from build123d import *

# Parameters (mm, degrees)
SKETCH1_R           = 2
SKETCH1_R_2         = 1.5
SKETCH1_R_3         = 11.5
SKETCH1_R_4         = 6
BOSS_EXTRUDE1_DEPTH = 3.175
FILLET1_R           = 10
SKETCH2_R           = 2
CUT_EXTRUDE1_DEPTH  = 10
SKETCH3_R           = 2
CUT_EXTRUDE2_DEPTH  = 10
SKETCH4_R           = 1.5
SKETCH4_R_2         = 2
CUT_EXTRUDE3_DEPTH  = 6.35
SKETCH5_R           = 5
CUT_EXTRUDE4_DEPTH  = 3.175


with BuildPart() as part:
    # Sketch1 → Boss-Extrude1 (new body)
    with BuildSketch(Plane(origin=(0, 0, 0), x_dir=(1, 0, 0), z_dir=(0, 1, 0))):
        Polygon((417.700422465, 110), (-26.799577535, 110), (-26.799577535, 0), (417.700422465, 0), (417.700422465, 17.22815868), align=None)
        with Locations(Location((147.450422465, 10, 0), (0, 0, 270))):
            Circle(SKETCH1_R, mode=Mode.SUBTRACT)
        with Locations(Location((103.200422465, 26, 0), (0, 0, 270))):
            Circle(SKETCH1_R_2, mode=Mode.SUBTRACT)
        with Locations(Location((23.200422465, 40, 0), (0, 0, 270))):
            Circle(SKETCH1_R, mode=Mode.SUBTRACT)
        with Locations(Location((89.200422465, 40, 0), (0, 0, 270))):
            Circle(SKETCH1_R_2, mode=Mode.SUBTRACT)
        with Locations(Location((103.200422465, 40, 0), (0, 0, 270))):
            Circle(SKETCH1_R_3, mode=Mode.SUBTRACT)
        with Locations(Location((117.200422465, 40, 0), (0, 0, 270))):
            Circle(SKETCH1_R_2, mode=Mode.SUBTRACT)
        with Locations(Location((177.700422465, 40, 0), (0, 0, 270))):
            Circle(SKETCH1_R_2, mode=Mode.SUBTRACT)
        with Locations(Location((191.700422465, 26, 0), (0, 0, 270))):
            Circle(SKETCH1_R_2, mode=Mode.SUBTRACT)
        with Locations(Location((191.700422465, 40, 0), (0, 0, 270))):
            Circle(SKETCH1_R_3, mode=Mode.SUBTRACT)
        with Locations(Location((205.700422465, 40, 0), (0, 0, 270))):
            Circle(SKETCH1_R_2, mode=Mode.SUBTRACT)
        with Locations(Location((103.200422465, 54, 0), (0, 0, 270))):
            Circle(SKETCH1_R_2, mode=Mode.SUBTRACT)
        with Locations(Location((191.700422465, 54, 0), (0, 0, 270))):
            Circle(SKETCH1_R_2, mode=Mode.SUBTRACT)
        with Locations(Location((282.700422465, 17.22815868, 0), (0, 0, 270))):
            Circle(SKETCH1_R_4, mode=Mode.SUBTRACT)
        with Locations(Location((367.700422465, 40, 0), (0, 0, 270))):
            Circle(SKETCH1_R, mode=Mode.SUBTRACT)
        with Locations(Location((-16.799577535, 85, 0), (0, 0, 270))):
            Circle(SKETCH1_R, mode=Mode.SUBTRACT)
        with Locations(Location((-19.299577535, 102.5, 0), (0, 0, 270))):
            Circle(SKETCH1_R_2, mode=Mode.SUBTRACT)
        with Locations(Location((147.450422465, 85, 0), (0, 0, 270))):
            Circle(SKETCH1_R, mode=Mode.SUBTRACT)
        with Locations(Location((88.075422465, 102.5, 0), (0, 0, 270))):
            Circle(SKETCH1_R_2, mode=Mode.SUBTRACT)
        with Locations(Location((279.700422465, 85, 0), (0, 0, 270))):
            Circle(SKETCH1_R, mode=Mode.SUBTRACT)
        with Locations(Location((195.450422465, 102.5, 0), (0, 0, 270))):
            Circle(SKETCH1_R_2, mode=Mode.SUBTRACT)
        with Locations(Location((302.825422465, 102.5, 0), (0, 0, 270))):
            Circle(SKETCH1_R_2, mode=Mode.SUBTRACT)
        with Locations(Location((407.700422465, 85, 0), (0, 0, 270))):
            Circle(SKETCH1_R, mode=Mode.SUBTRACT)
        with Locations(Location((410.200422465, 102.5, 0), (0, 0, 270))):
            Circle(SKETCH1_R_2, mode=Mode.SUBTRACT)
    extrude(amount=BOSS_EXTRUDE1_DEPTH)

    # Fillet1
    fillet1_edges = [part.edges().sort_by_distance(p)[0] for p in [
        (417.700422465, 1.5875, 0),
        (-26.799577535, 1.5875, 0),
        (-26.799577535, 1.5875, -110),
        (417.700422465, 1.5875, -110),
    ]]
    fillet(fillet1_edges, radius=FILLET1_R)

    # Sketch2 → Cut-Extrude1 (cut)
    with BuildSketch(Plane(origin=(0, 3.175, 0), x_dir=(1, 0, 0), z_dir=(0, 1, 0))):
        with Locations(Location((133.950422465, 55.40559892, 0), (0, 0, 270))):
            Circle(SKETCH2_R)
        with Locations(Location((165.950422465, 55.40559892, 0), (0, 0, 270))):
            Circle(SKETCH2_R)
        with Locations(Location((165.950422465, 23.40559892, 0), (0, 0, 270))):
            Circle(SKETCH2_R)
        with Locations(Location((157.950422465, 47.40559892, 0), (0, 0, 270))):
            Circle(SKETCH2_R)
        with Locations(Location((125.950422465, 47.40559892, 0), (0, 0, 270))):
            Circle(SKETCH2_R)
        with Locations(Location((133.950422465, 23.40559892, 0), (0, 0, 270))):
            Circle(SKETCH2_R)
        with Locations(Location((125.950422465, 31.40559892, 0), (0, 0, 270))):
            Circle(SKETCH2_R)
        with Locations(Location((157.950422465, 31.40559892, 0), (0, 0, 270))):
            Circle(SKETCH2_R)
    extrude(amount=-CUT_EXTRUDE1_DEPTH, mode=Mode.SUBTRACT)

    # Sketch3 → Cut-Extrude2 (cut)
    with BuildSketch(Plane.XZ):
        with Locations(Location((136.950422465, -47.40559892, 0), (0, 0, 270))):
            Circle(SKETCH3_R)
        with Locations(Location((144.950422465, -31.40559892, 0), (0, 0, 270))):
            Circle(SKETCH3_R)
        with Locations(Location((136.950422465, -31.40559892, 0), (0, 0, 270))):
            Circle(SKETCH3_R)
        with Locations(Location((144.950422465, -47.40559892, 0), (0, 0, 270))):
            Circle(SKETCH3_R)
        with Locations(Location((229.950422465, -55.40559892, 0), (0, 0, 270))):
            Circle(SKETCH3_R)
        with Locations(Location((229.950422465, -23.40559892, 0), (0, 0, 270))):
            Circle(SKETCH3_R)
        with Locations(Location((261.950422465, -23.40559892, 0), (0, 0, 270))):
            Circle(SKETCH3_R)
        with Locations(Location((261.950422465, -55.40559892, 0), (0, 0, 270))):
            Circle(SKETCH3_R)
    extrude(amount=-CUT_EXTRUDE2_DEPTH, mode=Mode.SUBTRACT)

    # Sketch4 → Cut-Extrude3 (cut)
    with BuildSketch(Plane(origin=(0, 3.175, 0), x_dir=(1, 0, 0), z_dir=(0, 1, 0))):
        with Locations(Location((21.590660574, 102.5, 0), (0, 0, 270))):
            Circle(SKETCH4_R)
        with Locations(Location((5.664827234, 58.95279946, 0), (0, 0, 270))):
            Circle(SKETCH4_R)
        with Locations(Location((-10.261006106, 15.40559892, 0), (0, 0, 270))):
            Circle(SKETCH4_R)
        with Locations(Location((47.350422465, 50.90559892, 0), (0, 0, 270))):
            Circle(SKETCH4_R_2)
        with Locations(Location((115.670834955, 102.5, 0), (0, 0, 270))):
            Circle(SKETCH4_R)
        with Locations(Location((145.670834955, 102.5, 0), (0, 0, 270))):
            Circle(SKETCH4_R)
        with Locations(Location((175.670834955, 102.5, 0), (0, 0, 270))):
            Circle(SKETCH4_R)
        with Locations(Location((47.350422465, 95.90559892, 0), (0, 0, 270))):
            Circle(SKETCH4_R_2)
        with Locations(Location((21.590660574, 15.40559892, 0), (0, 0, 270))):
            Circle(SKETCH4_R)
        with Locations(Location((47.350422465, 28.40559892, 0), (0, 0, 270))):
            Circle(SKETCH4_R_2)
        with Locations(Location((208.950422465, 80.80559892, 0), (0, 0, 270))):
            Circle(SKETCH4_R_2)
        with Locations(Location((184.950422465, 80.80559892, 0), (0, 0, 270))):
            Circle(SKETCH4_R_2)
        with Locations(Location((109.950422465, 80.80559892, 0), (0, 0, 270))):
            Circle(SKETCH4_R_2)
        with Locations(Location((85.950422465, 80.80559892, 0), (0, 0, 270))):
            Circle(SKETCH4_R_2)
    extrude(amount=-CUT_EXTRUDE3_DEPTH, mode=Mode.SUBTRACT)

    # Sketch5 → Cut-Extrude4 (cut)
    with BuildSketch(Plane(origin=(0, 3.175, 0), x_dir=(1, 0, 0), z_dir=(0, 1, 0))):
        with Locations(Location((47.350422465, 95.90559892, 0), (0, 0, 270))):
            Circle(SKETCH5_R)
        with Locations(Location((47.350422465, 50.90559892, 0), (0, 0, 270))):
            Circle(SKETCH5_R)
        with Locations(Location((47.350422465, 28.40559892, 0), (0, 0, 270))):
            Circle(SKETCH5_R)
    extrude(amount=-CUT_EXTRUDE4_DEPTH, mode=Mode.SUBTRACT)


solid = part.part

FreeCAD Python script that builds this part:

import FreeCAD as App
import Part
import Sketcher
Q = App.Units.Quantity


def edges_at(feature, points):
    """Names of the edges that pass closest to the given points."""
    edges = feature.Shape.Edges
    near = lambda p: min(range(len(edges)), key=lambda i: edges[i].distToShape(Part.Vertex(*p))[0])
    return sorted({f"Edge{near(p) + 1}" for p in points})


def add_polygon(sketch, points):
    """Adds a closed chain of lines whose ends are joined by coincident constraints."""
    first, n = sketch.GeometryCount, len(points)
    for a, b in zip(points, points[1:] + points[:1]):
        sketch.addGeometry(Part.LineSegment(App.Vector(*a, 0), App.Vector(*b, 0)), False)
    for i in range(n):
        sketch.addConstraint(Sketcher.Constraint("Coincident", first + i, 2, first + (i + 1) % n, 1))

doc = App.newDocument("Part")
body = doc.addObject("PartDesign::Body", "Body")

# Sketch on XZ plane
sketch1 = body.newObject("Sketcher::SketchObject", "Sketch")
sketch1.AttachmentSupport = (doc.getObject("XZ_Plane"), [""])
sketch1.MapMode = "FlatFace"
add_polygon(sketch1, [(417.7, -110), (-26.8, -110), (-26.8, 0), (417.7, 0)])  # lines 0-3
sketch1.addGeometry(Part.Circle(App.Vector(147.5, -10, 0), App.Vector(0, 0, 1), 2), False)  # 4
sketch1.addGeometry(Part.Circle(App.Vector(103.2, -26, 0), App.Vector(0, 0, 1), 1.5), False)  # 5
sketch1.addGeometry(Part.Circle(App.Vector(191.7, -26, 0), App.Vector(0, 0, 1), 1.5), False)  # 6
sketch1.addGeometry(Part.Circle(App.Vector(23.2, -40, 0), App.Vector(0, 0, 1), 2), False)  # 7
sketch1.addGeometry(Part.Circle(App.Vector(89.2, -40, 0), App.Vector(0, 0, 1), 1.5), False)  # 8
sketch1.addGeometry(Part.Circle(App.Vector(103.2, -40, 0), App.Vector(0, 0, 1), 11.5), False)  # 9
sketch1.addGeometry(Part.Circle(App.Vector(117.2, -40, 0), App.Vector(0, 0, 1), 1.5), False)  # 10
sketch1.addGeometry(Part.Circle(App.Vector(177.7, -40, 0), App.Vector(0, 0, 1), 1.5), False)  # 11
sketch1.addGeometry(Part.Circle(App.Vector(191.7, -40, 0), App.Vector(0, 0, 1), 11.5), False)  # 12
sketch1.addGeometry(Part.Circle(App.Vector(103.2, -54, 0), App.Vector(0, 0, 1), 1.5), False)  # 13
sketch1.addGeometry(Part.Circle(App.Vector(191.7, -54, 0), App.Vector(0, 0, 1), 1.5), False)  # 14
sketch1.addGeometry(Part.Circle(App.Vector(282.7, -17.2, 0), App.Vector(0, 0, 1), 6), False)  # 15
sketch1.addGeometry(Part.Circle(App.Vector(205.7, -40, 0), App.Vector(0, 0, 1), 1.5), False)  # 16
sketch1.addGeometry(Part.Circle(App.Vector(367.7, -40, 0), App.Vector(0, 0, 1), 2), False)  # 17
sketch1.addGeometry(Part.Circle(App.Vector(-16.8, -85, 0), App.Vector(0, 0, 1), 2), False)  # 18
sketch1.addGeometry(Part.Circle(App.Vector(-19.3, -102.5, 0), App.Vector(0, 0, 1), 1.5), False)  # 19
sketch1.addGeometry(Part.Circle(App.Vector(147.5, -85, 0), App.Vector(0, 0, 1), 2), False)  # 20
sketch1.addGeometry(Part.Circle(App.Vector(88.1, -102.5, 0), App.Vector(0, 0, 1), 1.5), False)  # 21
sketch1.addGeometry(Part.Circle(App.Vector(279.7, -85, 0), App.Vector(0, 0, 1), 2), False)  # 22
sketch1.addGeometry(Part.Circle(App.Vector(195.5, -102.5, 0), App.Vector(0, 0, 1), 1.5), False)  # 23
sketch1.addGeometry(Part.Circle(App.Vector(302.8, -102.5, 0), App.Vector(0, 0, 1), 1.5), False)  # 24
sketch1.addGeometry(Part.Circle(App.Vector(407.7, -85, 0), App.Vector(0, 0, 1), 2), False)  # 25
sketch1.addGeometry(Part.Circle(App.Vector(410.2, -102.5, 0), App.Vector(0, 0, 1), 1.5), False)  # 26
sketch1.addConstraint([
    Sketcher.Constraint("Horizontal", 0),
    Sketcher.Constraint("Vertical", 1),
    Sketcher.Constraint("Horizontal", 2),
    Sketcher.Constraint("Vertical", 3),
    Sketcher.Constraint("Equal", 5, 6),
    Sketcher.Constraint("Equal", 4, 7),
    Sketcher.Constraint("Equal", 6, 8),
    Sketcher.Constraint("Equal", 8, 10),
    Sketcher.Constraint("Equal", 10, 11),
    Sketcher.Constraint("Equal", 9, 12),
    Sketcher.Constraint("Equal", 11, 13),
    Sketcher.Constraint("Equal", 13, 14),
    Sketcher.Constraint("Equal", 14, 16),
    Sketcher.Constraint("Equal", 7, 17),
    Sketcher.Constraint("Equal", 17, 18),
    Sketcher.Constraint("Equal", 16, 19),
    Sketcher.Constraint("Equal", 18, 20),
    Sketcher.Constraint("Equal", 19, 21),
    Sketcher.Constraint("Equal", 20, 22),
    Sketcher.Constraint("Equal", 21, 23),
    Sketcher.Constraint("Equal", 23, 24),
    Sketcher.Constraint("Equal", 22, 25),
    Sketcher.Constraint("Equal", 24, 26),
    Sketcher.Constraint("PointOnObject", 1, 2, -1),
    Sketcher.Constraint("Horizontal", 5, 3, 6, 3),
    Sketcher.Constraint("Horizontal", 7, 3, 8, 3),
    Sketcher.Constraint("Horizontal", 8, 3, 9, 3),
    Sketcher.Constraint("Horizontal", 9, 3, 10, 3),
    Sketcher.Constraint("Horizontal", 10, 3, 11, 3),
    Sketcher.Constraint("Horizontal", 11, 3, 12, 3),
    Sketcher.Constraint("Horizontal", 13, 3, 14, 3),
    Sketcher.Constraint("Horizontal", 12, 3, 16, 3),
    Sketcher.Constraint("Horizontal", 16, 3, 17, 3),
    Sketcher.Constraint("Horizontal", 18, 3, 20, 3),
    Sketcher.Constraint("Horizontal", 19, 3, 21, 3),
    Sketcher.Constraint("Horizontal", 20, 3, 22, 3),
    Sketcher.Constraint("Horizontal", 21, 3, 23, 3),
    Sketcher.Constraint("Horizontal", 23, 3, 24, 3),
    Sketcher.Constraint("Horizontal", 22, 3, 25, 3),
    Sketcher.Constraint("Horizontal", 24, 3, 26, 3),
    Sketcher.Constraint("Vertical", 5, 3, 9, 3),
    Sketcher.Constraint("Vertical", 6, 3, 12, 3),
    Sketcher.Constraint("Vertical", 9, 3, 13, 3),
    Sketcher.Constraint("Vertical", 12, 3, 14, 3),
    Sketcher.Constraint("Vertical", 4, 3, 20, 3),
    Sketcher.Constraint("Diameter", 4, Q("4 mm")),
    Sketcher.Constraint("Diameter", 5, Q("3 mm")),
    Sketcher.Constraint("Diameter", 9, Q("23 mm")),
    Sketcher.Constraint("Diameter", 15, Q("12 mm")),
    Sketcher.Constraint("DistanceY", 1, 1, 1, 2, Q("110 mm")),
    Sketcher.Constraint("DistanceX", 0, 2, 0, 1, Q("444.5 mm")),
    Sketcher.Constraint("DistanceY", 4, 3, -1, 1, Q("10 mm")),
    Sketcher.Constraint("DistanceY", 5, 3, -1, 1, Q("26 mm")),
    Sketcher.Constraint("DistanceY", 7, 3, -1, 1, Q("40 mm")),
    Sketcher.Constraint("DistanceY", 13, 3, -1, 1, Q("54 mm")),
    Sketcher.Constraint("DistanceY", 18, 3, -1, 1, Q("85 mm")),
    Sketcher.Constraint("DistanceX", 7, 3, 5, 3, Q("80 mm")),
    Sketcher.Constraint("DistanceX", 8, 3, 5, 3, Q("14 mm")),
    Sketcher.Constraint("DistanceX", 9, 3, 10, 3, Q("14 mm")),
    Sketcher.Constraint("DistanceX", 11, 3, 6, 3, Q("14 mm")),
    Sketcher.Constraint("DistanceX", 6, 3, 15, 3, Q("91 mm")),
    Sketcher.Constraint("DistanceX", 12, 3, 16, 3, Q("14 mm")),
    Sketcher.Constraint("DistanceX", 15, 3, 17, 3, Q("85 mm")),
    Sketcher.Constraint("DistanceX", 18, 3, 7, 3, Q("40 mm")),
    Sketcher.Constraint("DistanceX", 22, 3, 15, 3, Q("3 mm")),
    Sketcher.Constraint("DistanceX", 20, 3, 23, 3, Q("48 mm")),
    Sketcher.Constraint("DistanceX", 17, 3, 25, 3, Q("40 mm")),
    Sketcher.Constraint("DistanceX", 0, 2, 18, 3, Q("10 mm")),
    Sketcher.Constraint("DistanceX", 17, 3, 2, 2, Q("50 mm")),
    Sketcher.Constraint("DistanceY", 19, 3, -1, 1, Q("102.5 mm")),
    Sketcher.Constraint("DistanceX", 19, 3, 18, 3, Q("2.5 mm")),
    Sketcher.Constraint("DistanceX", 25, 3, 26, 3, Q("2.5 mm")),
    Sketcher.Constraint("DistanceX", 5, 3, 4, 3, Q("44.25 mm")),
    Sketcher.Constraint("DistanceX", 21, 3, 13, 3, Q("15.125 mm")),
    Sketcher.Constraint("DistanceX", 22, 3, 24, 3, Q("23.125 mm")),
    Sketcher.Constraint("DistanceY", 15, 3, -1, 1, Q("17.228159 mm")),
    Sketcher.Constraint("DistanceX", -1, 1, 4, 3, Q("147.450422 mm")),
])
pad1 = body.newObject("PartDesign::Pad", "Pad")
pad1.Profile = sketch1
pad1.Length = 3.175
pad1.Reversed = True
doc.recompute()

fillet = body.newObject("PartDesign::Fillet", "Fillet")
fillet.Base = (pad1, edges_at(pad1, [
    (417.7, 1.587, 0),
    (-26.8, 1.587, 0),
    (-26.8, 1.587, -110),
    (417.7, 1.587, -110),
]))
fillet.Radius = 10

# Sketch on XZ plane
sketch2 = body.newObject("Sketcher::SketchObject", "Sketch001")
sketch2.AttachmentSupport = (doc.getObject("XZ_Plane"), [""])
sketch2.MapMode = "FlatFace"
sketch2.AttachmentOffset = App.Placement(App.Vector(0, 0, -3.175), App.Rotation())
sketch2.addGeometry([
    Part.Circle(App.Vector(134, -55.4, 0), App.Vector(0, 0, 1), 2),  # 0
    Part.Circle(App.Vector(166, -55.4, 0), App.Vector(0, 0, 1), 2),  # 1
    Part.Circle(App.Vector(166, -23.4, 0), App.Vector(0, 0, 1), 2),  # 2
    Part.Circle(App.Vector(158, -47.4, 0), App.Vector(0, 0, 1), 2),  # 3
    Part.Circle(App.Vector(126, -47.4, 0), App.Vector(0, 0, 1), 2),  # 4
    Part.Circle(App.Vector(134, -23.4, 0), App.Vector(0, 0, 1), 2),  # 5
    Part.Circle(App.Vector(126, -31.4, 0), App.Vector(0, 0, 1), 2),  # 6
    Part.Circle(App.Vector(158, -31.4, 0), App.Vector(0, 0, 1), 2),  # 7
], False)
sketch2.addConstraint([
    Sketcher.Constraint("Equal", 0, 1),
    Sketcher.Constraint("Equal", 1, 2),
    Sketcher.Constraint("Equal", 2, 3),
    Sketcher.Constraint("Equal", 3, 4),
    Sketcher.Constraint("Equal", 4, 5),
    Sketcher.Constraint("Equal", 5, 6),
    Sketcher.Constraint("Equal", 6, 7),
    Sketcher.Constraint("Horizontal", 0, 3, 1, 3),
    Sketcher.Constraint("Horizontal", 3, 3, 4, 3),
    Sketcher.Constraint("Horizontal", 2, 3, 5, 3),
    Sketcher.Constraint("Horizontal", 6, 3, 7, 3),
    Sketcher.Constraint("Vertical", 1, 3, 2, 3),
    Sketcher.Constraint("Vertical", 0, 3, 5, 3),
    Sketcher.Constraint("Vertical", 4, 3, 6, 3),
    Sketcher.Constraint("Vertical", 3, 3, 7, 3),
    Sketcher.Constraint("Diameter", 0, Q("4 mm")),
    Sketcher.Constraint("DistanceX", 0, 3, 1, 3, Q("32 mm")),
    Sketcher.Constraint("DistanceY", 1, 3, 2, 3, Q("32 mm")),
    Sketcher.Constraint("DistanceX", 3, 3, 1, 3, Q("8 mm")),
    Sketcher.Constraint("DistanceY", 1, 3, 3, 3, Q("8 mm")),
    Sketcher.Constraint("DistanceX", 4, 3, 0, 3, Q("8 mm")),
    Sketcher.Constraint("DistanceY", 6, 3, 5, 3, Q("8 mm")),
    Sketcher.Constraint("DistanceY", 0, 3, -1, 1, Q("55.405599 mm")),
    Sketcher.Constraint("DistanceX", -1, 1, 0, 3, Q("133.950422 mm")),
])
pocket1 = body.newObject("PartDesign::Pocket", "Pocket")
pocket1.Profile = sketch2
pocket1.Length = 10
pocket1.Reversed = True

# Sketch on XZ plane
sketch3 = body.newObject("Sketcher::SketchObject", "Sketch002")
sketch3.AttachmentSupport = (doc.getObject("XZ_Plane"), [""])
sketch3.MapMode = "FlatFace"
sketch3.addGeometry([
    Part.Circle(App.Vector(137, -47.4, 0), App.Vector(0, 0, 1), 2),  # 0
    Part.Circle(App.Vector(145, -31.4, 0), App.Vector(0, 0, 1), 2),  # 1
    Part.Circle(App.Vector(137, -31.4, 0), App.Vector(0, 0, 1), 2),  # 2
    Part.Circle(App.Vector(145, -47.4, 0), App.Vector(0, 0, 1), 2),  # 3
    Part.Circle(App.Vector(230, -55.4, 0), App.Vector(0, 0, 1), 2),  # 4
    Part.Circle(App.Vector(230, -23.4, 0), App.Vector(0, 0, 1), 2),  # 5
    Part.Circle(App.Vector(262, -23.4, 0), App.Vector(0, 0, 1), 2),  # 6
    Part.Circle(App.Vector(262, -55.4, 0), App.Vector(0, 0, 1), 2),  # 7
], False)
sketch3.addConstraint([
    Sketcher.Constraint("Equal", 0, 1),
    Sketcher.Constraint("Equal", 1, 2),
    Sketcher.Constraint("Equal", 2, 3),
    Sketcher.Constraint("Equal", 3, 4),
    Sketcher.Constraint("Equal", 4, 5),
    Sketcher.Constraint("Equal", 5, 6),
    Sketcher.Constraint("Equal", 6, 7),
    Sketcher.Constraint("Horizontal", 1, 3, 2, 3),
    Sketcher.Constraint("Horizontal", 0, 3, 3, 3),
    Sketcher.Constraint("Horizontal", 5, 3, 6, 3),
    Sketcher.Constraint("Horizontal", 4, 3, 7, 3),
    Sketcher.Constraint("Vertical", 0, 3, 2, 3),
    Sketcher.Constraint("Vertical", 1, 3, 3, 3),
    Sketcher.Constraint("Vertical", 4, 3, 5, 3),
    Sketcher.Constraint("Vertical", 6, 3, 7, 3),
    Sketcher.Constraint("Diameter", 0, Q("4 mm")),
    Sketcher.Constraint("DistanceX", 0, 3, 1, 3, Q("8 mm")),
    Sketcher.Constraint("DistanceY", 0, 3, 1, 3, Q("16 mm")),
    Sketcher.Constraint("DistanceX", 3, 3, 4, 3, Q("85 mm")),
    Sketcher.Constraint("DistanceY", 4, 3, 3, 3, Q("8 mm")),
    Sketcher.Constraint("DistanceY", 4, 3, 5, 3, Q("32 mm")),
    Sketcher.Constraint("DistanceX", 5, 3, 6, 3, Q("32 mm")),
    Sketcher.Constraint("DistanceY", 0, 3, -1, 1, Q("47.405599 mm")),
    Sketcher.Constraint("DistanceX", -1, 1, 0, 3, Q("136.950422 mm")),
])
pocket2 = body.newObject("PartDesign::Pocket", "Pocket001")
pocket2.Profile = sketch3
pocket2.Length = 10

# Sketch on XZ plane
sketch4 = body.newObject("Sketcher::SketchObject", "Sketch003")
sketch4.AttachmentSupport = (doc.getObject("XZ_Plane"), [""])
sketch4.MapMode = "FlatFace"
sketch4.AttachmentOffset = App.Placement(App.Vector(0, 0, -3.175), App.Rotation())
sketch4.addGeometry([
    Part.Circle(App.Vector(21.6, -102.5, 0), App.Vector(0, 0, 1), 1.5),  # 0
    Part.Circle(App.Vector(5.7, -59, 0), App.Vector(0, 0, 1), 1.5),  # 1
    Part.Circle(App.Vector(-10.3, -15.4, 0), App.Vector(0, 0, 1), 1.5),  # 2
    Part.Circle(App.Vector(47.4, -50.9, 0), App.Vector(0, 0, 1), 2),  # 3
    Part.Circle(App.Vector(115.7, -102.5, 0), App.Vector(0, 0, 1), 1.5),  # 4
    Part.Circle(App.Vector(145.7, -102.5, 0), App.Vector(0, 0, 1), 1.5),  # 5
    Part.Circle(App.Vector(175.7, -102.5, 0), App.Vector(0, 0, 1), 1.5),  # 6
    Part.Circle(App.Vector(47.4, -95.9, 0), App.Vector(0, 0, 1), 2),  # 7
    Part.Circle(App.Vector(21.6, -15.4, 0), App.Vector(0, 0, 1), 1.5),  # 8
    Part.Circle(App.Vector(47.4, -28.4, 0), App.Vector(0, 0, 1), 2),  # 9
    Part.Circle(App.Vector(209, -80.8, 0), App.Vector(0, 0, 1), 2),  # 10
    Part.Circle(App.Vector(185, -80.8, 0), App.Vector(0, 0, 1), 2),  # 11
    Part.Circle(App.Vector(110, -80.8, 0), App.Vector(0, 0, 1), 2),  # 12
    Part.Circle(App.Vector(86, -80.8, 0), App.Vector(0, 0, 1), 2),  # 13
], False)
sketch4.addConstraint([
    Sketcher.Constraint("Equal", 0, 1),
    Sketcher.Constraint("Equal", 1, 2),
    Sketcher.Constraint("Equal", 2, 4),
    Sketcher.Constraint("Equal", 4, 5),
    Sketcher.Constraint("Equal", 5, 6),
    Sketcher.Constraint("Equal", 3, 7),
    Sketcher.Constraint("Equal", 6, 8),
    Sketcher.Constraint("Equal", 7, 9),
    Sketcher.Constraint("Equal", 9, 10),
    Sketcher.Constraint("Equal", 10, 11),
    Sketcher.Constraint("Equal", 11, 12),
    Sketcher.Constraint("Equal", 12, 13),
    Sketcher.Constraint("Horizontal", 0, 3, 4, 3),
    Sketcher.Constraint("Horizontal", 4, 3, 5, 3),
    Sketcher.Constraint("Horizontal", 5, 3, 6, 3),
    Sketcher.Constraint("Horizontal", 2, 3, 8, 3),
    Sketcher.Constraint("Horizontal", 10, 3, 11, 3),
    Sketcher.Constraint("Horizontal", 11, 3, 12, 3),
    Sketcher.Constraint("Horizontal", 12, 3, 13, 3),
    Sketcher.Constraint("Vertical", 3, 3, 7, 3),
    Sketcher.Constraint("Vertical", 0, 3, 8, 3),
    Sketcher.Constraint("Vertical", 7, 3, 9, 3),
    Sketcher.Constraint("Diameter", 0, Q("3 mm")),
    Sketcher.Constraint("Diameter", 3, Q("4 mm")),
    Sketcher.Constraint("DistanceX", 4, 3, 5, 3, Q("30 mm")),
    Sketcher.Constraint("DistanceX", 5, 3, 6, 3, Q("30 mm")),
    Sketcher.Constraint("DistanceY", 7, 3, 3, 3, Q("45 mm")),
    Sketcher.Constraint("DistanceY", 9, 3, 8, 3, Q("13 mm")),
    Sketcher.Constraint("DistanceX", 11, 3, 10, 3, Q("24 mm")),
    Sketcher.Constraint("DistanceX", 13, 3, 12, 3, Q("24 mm")),
    Sketcher.Constraint("DistanceY", 0, 3, -1, 1, Q("102.5 mm")),
    Sketcher.Constraint("DistanceY", 3, 3, 2, 3, Q("35.5 mm")),
    Sketcher.Constraint("DistanceX", 7, 3, 10, 3, Q("161.6 mm")),
    Sketcher.Constraint("DistanceY", 7, 3, 10, 3, Q("15.1 mm")),
    Sketcher.Constraint("DistanceX", 7, 3, 12, 3, Q("62.6 mm")),
    Sketcher.Constraint("DistanceY", 1, 3, -1, 1, Q("58.952799 mm")),
    Sketcher.Constraint("DistanceY", 2, 3, -1, 1, Q("15.405599 mm")),
    Sketcher.Constraint("DistanceX", -1, 1, 0, 3, Q("21.590661 mm")),
    Sketcher.Constraint("DistanceX", 0, 3, 3, 3, Q("25.759762 mm")),
    Sketcher.Constraint("DistanceX", 2, 3, 3, 3, Q("57.611429 mm")),
    Sketcher.Constraint("DistanceX", 2, 3, 4, 3, Q("125.931841 mm")),
    Sketcher.Constraint("DistanceX", -1, 1, 1, 3, Q("5.664827 mm")),
])
pocket3 = body.newObject("PartDesign::Pocket", "Pocket002")
pocket3.Profile = sketch4
pocket3.Length = 6.35
pocket3.Reversed = True

# Sketch on XZ plane
sketch5 = body.newObject("Sketcher::SketchObject", "Sketch004")
sketch5.AttachmentSupport = (doc.getObject("XZ_Plane"), [""])
sketch5.MapMode = "FlatFace"
sketch5.AttachmentOffset = App.Placement(App.Vector(0, 0, -3.175), App.Rotation())
sketch5.addGeometry([
    Part.Circle(App.Vector(47, -96, 0), App.Vector(0, 0, 1), 5),
    Part.Circle(App.Vector(47, -51, 0), App.Vector(0, 0, 1), 5),
    Part.Circle(App.Vector(47, -28, 0), App.Vector(0, 0, 1), 5),
], False)
sketch5.addConstraint([
    Sketcher.Constraint("Equal", 0, 1),
    Sketcher.Constraint("Equal", 1, 2),
    Sketcher.Constraint("Vertical", 0, 3, 1, 3),
    Sketcher.Constraint("Vertical", 1, 3, 2, 3),
    Sketcher.Constraint("Diameter", 0, Q("10 mm")),
    Sketcher.Constraint("DistanceY", 0, 3, 1, 3, Q("45 mm")),
    Sketcher.Constraint("DistanceY", 1, 3, 2, 3, Q("22.5 mm")),
    Sketcher.Constraint("DistanceY", 0, 3, -1, 1, Q("95.905599 mm")),
    Sketcher.Constraint("DistanceX", -1, 1, 0, 3, Q("47.350422 mm")),
])
pocket4 = body.newObject("PartDesign::Pocket", "Pocket003")
pocket4.Profile = sketch5
pocket4.Length = 3.175
pocket4.Reversed = True

doc.recompute()
